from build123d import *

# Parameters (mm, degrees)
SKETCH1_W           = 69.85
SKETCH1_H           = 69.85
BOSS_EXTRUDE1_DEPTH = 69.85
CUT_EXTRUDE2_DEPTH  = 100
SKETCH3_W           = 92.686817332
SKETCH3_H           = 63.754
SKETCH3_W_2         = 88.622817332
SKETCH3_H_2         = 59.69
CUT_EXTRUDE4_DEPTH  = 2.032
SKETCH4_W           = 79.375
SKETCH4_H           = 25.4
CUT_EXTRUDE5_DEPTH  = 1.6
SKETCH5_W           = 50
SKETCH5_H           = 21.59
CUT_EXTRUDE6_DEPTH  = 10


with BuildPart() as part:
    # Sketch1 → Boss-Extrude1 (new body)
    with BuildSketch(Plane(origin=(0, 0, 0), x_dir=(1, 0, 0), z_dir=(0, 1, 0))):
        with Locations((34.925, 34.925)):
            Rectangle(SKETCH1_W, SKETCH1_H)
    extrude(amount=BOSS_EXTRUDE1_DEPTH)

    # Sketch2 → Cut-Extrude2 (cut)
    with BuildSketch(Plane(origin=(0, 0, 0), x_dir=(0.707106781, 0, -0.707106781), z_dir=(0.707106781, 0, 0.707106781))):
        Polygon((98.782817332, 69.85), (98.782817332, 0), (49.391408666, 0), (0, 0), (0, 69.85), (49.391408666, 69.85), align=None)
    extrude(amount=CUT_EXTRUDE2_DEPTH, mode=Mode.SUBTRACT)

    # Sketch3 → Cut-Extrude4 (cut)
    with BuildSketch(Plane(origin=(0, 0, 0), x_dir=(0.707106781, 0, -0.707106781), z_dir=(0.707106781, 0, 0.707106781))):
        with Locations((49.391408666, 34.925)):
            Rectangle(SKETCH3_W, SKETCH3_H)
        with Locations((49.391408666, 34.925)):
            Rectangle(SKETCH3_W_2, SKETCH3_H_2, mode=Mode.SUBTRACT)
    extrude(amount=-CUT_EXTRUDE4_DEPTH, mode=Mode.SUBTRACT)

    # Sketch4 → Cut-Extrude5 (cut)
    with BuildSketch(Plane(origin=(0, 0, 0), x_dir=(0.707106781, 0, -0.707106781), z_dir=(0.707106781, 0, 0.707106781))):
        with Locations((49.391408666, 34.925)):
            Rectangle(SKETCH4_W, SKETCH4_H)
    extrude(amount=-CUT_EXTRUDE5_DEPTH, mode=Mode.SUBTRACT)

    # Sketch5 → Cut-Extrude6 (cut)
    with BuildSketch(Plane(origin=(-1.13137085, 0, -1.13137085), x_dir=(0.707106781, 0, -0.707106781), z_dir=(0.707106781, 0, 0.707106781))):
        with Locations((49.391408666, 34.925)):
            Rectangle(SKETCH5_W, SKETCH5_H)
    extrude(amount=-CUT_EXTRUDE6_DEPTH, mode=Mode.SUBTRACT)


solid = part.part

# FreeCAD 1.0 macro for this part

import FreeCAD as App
import Part
import Sketcher
Q = App.Units.Quantity

doc = App.newDocument("Part")
body = doc.addObject("PartDesign::Body", "Body")

sketch1 = body.newObject("Sketcher::SketchObject", "Sketch")
sketch1.AttachmentSupport = (doc.getObject("XZ_Plane"), [""])
sketch1.MapMode = "FlatFace"
sketch1.addGeometry(Part.LineSegment(App.Vector(0, -70, 0), App.Vector(0, 0, 0)), False)
sketch1.addGeometry(Part.LineSegment(App.Vector(0, 0, 0), App.Vector(70, 0, 0)), False)
sketch1.addGeometry(Part.LineSegment(App.Vector(70, 0, 0), App.Vector(70, -70, 0)), False)
sketch1.addGeometry(Part.LineSegment(App.Vector(70, -70, 0), App.Vector(0, -70, 0)), False)
sketch1.addConstraint(Sketcher.Constraint("Coincident", 0, 2, 1, 1))
sketch1.addConstraint(Sketcher.Constraint("Coincident", 1, 2, 2, 1))
sketch1.addConstraint(Sketcher.Constraint("Coincident", 2, 2, 3, 1))
sketch1.addConstraint(Sketcher.Constraint("Coincident", 3, 2, 0, 1))
sketch1.addConstraint(Sketcher.Constraint("Vertical", 0))
sketch1.addConstraint(Sketcher.Constraint("Horizontal", 1))
sketch1.addConstraint(Sketcher.Constraint("Vertical", 2))
sketch1.addConstraint(Sketcher.Constraint("Horizontal", 3))
sketch1.addConstraint(Sketcher.Constraint("Coincident", 0, 2, -1, 1))
sketch1.addConstraint(Sketcher.Constraint("Equal", 3, 0))
sketch1.addConstraint(Sketcher.Constraint("DistanceX", 1, 1, 1, 2, Q("2.75 in")))
pad1 = body.newObject("PartDesign::Pad", "Pad")
pad1.Profile = sketch1
pad1.Length = Q("2.75 in")
pad1.Reversed = True

sketch2 = body.newObject("Sketcher::SketchObject", "Sketch001")
sketch2.Placement = App.Placement(App.Vector(0, 0, 0), App.Rotation(App.Vector(0.707106781, 0, -0.707106781), App.Vector(0, 0.999999999, 0), App.Vector(0.707106781, 0, 0.707106781), "ZXY"))
sketch2.addGeometry(Part.LineSegment(App.Vector(99, 0, 0), App.Vector(99, 70, 0)), False)
sketch2.addGeometry(Part.LineSegment(App.Vector(99, 70, 0), App.Vector(0, 70, 0)), False)
sketch2.addGeometry(Part.LineSegment(App.Vector(0, 70, 0), App.Vector(0, 0, 0)), False)
sketch2.addGeometry(Part.LineSegment(App.Vector(0, 0, 0), App.Vector(99, 0, 0)), False)
sketch2.addConstraint(Sketcher.Constraint("Coincident", 0, 2, 1, 1))
sketch2.addConstraint(Sketcher.Constraint("Coincident", 1, 2, 2, 1))
sketch2.addConstraint(Sketcher.Constraint("Coincident", 2, 2, 3, 1))
sketch2.addConstraint(Sketcher.Constraint("Coincident", 3, 2, 0, 1))
sketch2.addConstraint(Sketcher.Constraint("Vertical", 0))
sketch2.addConstraint(Sketcher.Constraint("Horizontal", 1))
sketch2.addConstraint(Sketcher.Constraint("Vertical", 2))
sketch2.addConstraint(Sketcher.Constraint("Horizontal", 3))
sketch2.addConstraint(Sketcher.Constraint("Coincident", 2, 2, -1, 1))
sketch2.addConstraint(Sketcher.Constraint("DistanceY", 0, 1, 0, 2, Q("2.75 in")))
sketch2.addConstraint(Sketcher.Constraint("DistanceX", 1, 2, 1, 1, Q("98.782817 mm")))
pocket1 = body.newObject("PartDesign::Pocket", "Pocket")
pocket1.Profile = sketch2
pocket1.Length = 100
pocket1.Reversed = True

sketch3 = body.newObject("Sketcher::SketchObject", "Sketch002")
sketch3.Placement = App.Placement(App.Vector(0, 0, 0), App.Rotation(App.Vector(0.707106781, 0, -0.707106781), App.Vector(0, 0.999999999, 0), App.Vector(0.707106781, 0, 0.707106781), "ZXY"))
sketch3.addGeometry(Part.LineSegment(App.Vector(3, 67, 0), App.Vector(3, 3, 0)), False)
sketch3.addGeometry(Part.LineSegment(App.Vector(3, 3, 0), App.Vector(96, 3, 0)), False)
sketch3.addGeometry(Part.LineSegment(App.Vector(96, 3, 0), App.Vector(96, 67, 0)), False)
sketch3.addGeometry(Part.LineSegment(App.Vector(96, 67, 0), App.Vector(3, 67, 0)), False)
sketch3.addGeometry(Part.LineSegment(App.Vector(94, 5, 0), App.Vector(5, 5, 0)), False)
sketch3.addGeometry(Part.LineSegment(App.Vector(5, 5, 0), App.Vector(5, 65, 0)), False)
sketch3.addGeometry(Part.LineSegment(App.Vector(5, 65, 0), App.Vector(94, 65, 0)), False)
sketch3.addGeometry(Part.LineSegment(App.Vector(94, 65, 0), App.Vector(94, 5, 0)), False)
sketch3.addConstraint(Sketcher.Constraint("Coincident", 0, 2, 1, 1))
sketch3.addConstraint(Sketcher.Constraint("Coincident", 1, 2, 2, 1))
sketch3.addConstraint(Sketcher.Constraint("Coincident", 2, 2, 3, 1))
sketch3.addConstraint(Sketcher.Constraint("Coincident", 3, 2, 0, 1))
sketch3.addConstraint(Sketcher.Constraint("Coincident", 4, 2, 5, 1))
sketch3.addConstraint(Sketcher.Constraint("Coincident", 5, 2, 6, 1))
sketch3.addConstraint(Sketcher.Constraint("Coincident", 6, 2, 7, 1))
sketch3.addConstraint(Sketcher.Constraint("Coincident", 7, 2, 4, 1))
sketch3.addConstraint(Sketcher.Constraint("Vertical", 0))
sketch3.addConstraint(Sketcher.Constraint("Horizontal", 1))
sketch3.addConstraint(Sketcher.Constraint("Vertical", 2))
sketch3.addConstraint(Sketcher.Constraint("Horizontal", 3))
sketch3.addConstraint(Sketcher.Constraint("Horizontal", 4))
sketch3.addConstraint(Sketcher.Constraint("Vertical", 5))
sketch3.addConstraint(Sketcher.Constraint("Horizontal", 6))
sketch3.addConstraint(Sketcher.Constraint("Vertical", 7))
sketch3.addConstraint(Sketcher.Constraint("DistanceY", 0, 2, 0, 1, Q("2.51 in")))
sketch3.addConstraint(Sketcher.Constraint("DistanceY", 5, 1, 5, 2, Q("2.35 in")))
sketch3.addConstraint(Sketcher.Constraint("DistanceX", -1, 1, 4, 2, Q("0.2 in")))
sketch3.addConstraint(Sketcher.Constraint("DistanceY", -1, 1, 4, 2, Q("0.2 in")))
sketch3.addConstraint(Sketcher.Constraint("DistanceX", -1, 1, 0, 2, Q("0.12 in")))
sketch3.addConstraint(Sketcher.Constraint("DistanceY", -1, 1, 0, 2, Q("0.12 in")))
sketch3.addConstraint(Sketcher.Constraint("DistanceX", 6, 2, 2, 2, Q("0.08 in")))
sketch3.addConstraint(Sketcher.Constraint("DistanceX", 1, 1, 1, 2, Q("92.686817 mm")))
pocket2 = body.newObject("PartDesign::Pocket", "Pocket001")
pocket2.Profile = sketch3
pocket2.Length = Q("0.08 in")

sketch4 = body.newObject("Sketcher::SketchObject", "Sketch003")
sketch4.Placement = App.Placement(App.Vector(0, 0, 0), App.Rotation(App.Vector(0.707106781, 0, -0.707106781), App.Vector(0, 0.999999999, 0), App.Vector(0.707106781, 0, 0.707106781), "ZXY"))
sketch4.addGeometry(Part.LineSegment(App.Vector(10, 48, 0), App.Vector(10, 22, 0)), False)
sketch4.addGeometry(Part.LineSegment(App.Vector(10, 22, 0), App.Vector(89, 22, 0)), False)
sketch4.addGeometry(Part.LineSegment(App.Vector(89, 22, 0), App.Vector(89, 48, 0)), False)
sketch4.addGeometry(Part.LineSegment(App.Vector(89, 48, 0), App.Vector(10, 48, 0)), False)
sketch4.addConstraint(Sketcher.Constraint("Coincident", 0, 2, 1, 1))
sketch4.addConstraint(Sketcher.Constraint("Coincident", 1, 2, 2, 1))
sketch4.addConstraint(Sketcher.Constraint("Coincident", 2, 2, 3, 1))
sketch4.addConstraint(Sketcher.Constraint("Coincident", 3, 2, 0, 1))
sketch4.addConstraint(Sketcher.Constraint("Vertical", 0))
sketch4.addConstraint(Sketcher.Constraint("Horizontal", 1))
sketch4.addConstraint(Sketcher.Constraint("Vertical", 2))
sketch4.addConstraint(Sketcher.Constraint("Horizontal", 3))
sketch4.addConstraint(Sketcher.Constraint("DistanceY", 0, 2, 0, 1, Q("1 in")))
sketch4.addConstraint(Sketcher.Constraint("DistanceX", 1, 1, 1, 2, Q("3.125 in")))
sketch4.addConstraint(Sketcher.Constraint("DistanceY", -1, 1, 0, 2, Q("0.875 in")))
sketch4.addConstraint(Sketcher.Constraint("DistanceX", -1, 1, 0, 2, Q("9.703909 mm")))
pocket3 = body.newObject("PartDesign::Pocket", "Pocket002")
pocket3.Profile = sketch4
pocket3.Length = 1.6

sketch5 = body.newObject("Sketcher::SketchObject", "Sketch004")
sketch5.Placement = App.Placement(App.Vector(-1.131371, 0, -1.131371), App.Rotation(App.Vector(0.707106781, 0, -0.707106781), App.Vector(0, 0.999999999, 0), App.Vector(0.707106781, 0, 0.707106781), "ZXY"))
sketch5.addGeometry(Part.LineSegment(App.Vector(24, 46, 0), App.Vector(24, 24, 0)), False)
sketch5.addGeometry(Part.LineSegment(App.Vector(24, 24, 0), App.Vector(74, 24, 0)), False)
sketch5.addGeometry(Part.LineSegment(App.Vector(74, 24, 0), App.Vector(74, 46, 0)), False)
sketch5.addGeometry(Part.LineSegment(App.Vector(74, 46, 0), App.Vector(24, 46, 0)), False)
sketch5.addConstraint(Sketcher.Constraint("Coincident", 0, 2, 1, 1))
sketch5.addConstraint(Sketcher.Constraint("Coincident", 1, 2, 2, 1))
sketch5.addConstraint(Sketcher.Constraint("Coincident", 2, 2, 3, 1))
sketch5.addConstraint(Sketcher.Constraint("Coincident", 3, 2, 0, 1))
sketch5.addConstraint(Sketcher.Constraint("Vertical", 0))
sketch5.addConstraint(Sketcher.Constraint("Horizontal", 1))
sketch5.addConstraint(Sketcher.Constraint("Vertical", 2))
sketch5.addConstraint(Sketcher.Constraint("Horizontal", 3))
sketch5.addConstraint(Sketcher.Constraint("DistanceY", 0, 2, 0, 1, Q("0.85 in")))
sketch5.addConstraint(Sketcher.Constraint("DistanceY", -1, 1, 2, 2, Q("1.8 in")))
sketch5.addConstraint(Sketcher.Constraint("DistanceX", 1, 1, 1, 2, Q("50 mm")))
sketch5.addConstraint(Sketcher.Constraint("DistanceX", -1, 1, 0, 2, Q("24.391409 mm")))
pocket4 = body.newObject("PartDesign::Pocket", "Pocket003")
pocket4.Profile = sketch5
pocket4.Length = 10

doc.recompute()
